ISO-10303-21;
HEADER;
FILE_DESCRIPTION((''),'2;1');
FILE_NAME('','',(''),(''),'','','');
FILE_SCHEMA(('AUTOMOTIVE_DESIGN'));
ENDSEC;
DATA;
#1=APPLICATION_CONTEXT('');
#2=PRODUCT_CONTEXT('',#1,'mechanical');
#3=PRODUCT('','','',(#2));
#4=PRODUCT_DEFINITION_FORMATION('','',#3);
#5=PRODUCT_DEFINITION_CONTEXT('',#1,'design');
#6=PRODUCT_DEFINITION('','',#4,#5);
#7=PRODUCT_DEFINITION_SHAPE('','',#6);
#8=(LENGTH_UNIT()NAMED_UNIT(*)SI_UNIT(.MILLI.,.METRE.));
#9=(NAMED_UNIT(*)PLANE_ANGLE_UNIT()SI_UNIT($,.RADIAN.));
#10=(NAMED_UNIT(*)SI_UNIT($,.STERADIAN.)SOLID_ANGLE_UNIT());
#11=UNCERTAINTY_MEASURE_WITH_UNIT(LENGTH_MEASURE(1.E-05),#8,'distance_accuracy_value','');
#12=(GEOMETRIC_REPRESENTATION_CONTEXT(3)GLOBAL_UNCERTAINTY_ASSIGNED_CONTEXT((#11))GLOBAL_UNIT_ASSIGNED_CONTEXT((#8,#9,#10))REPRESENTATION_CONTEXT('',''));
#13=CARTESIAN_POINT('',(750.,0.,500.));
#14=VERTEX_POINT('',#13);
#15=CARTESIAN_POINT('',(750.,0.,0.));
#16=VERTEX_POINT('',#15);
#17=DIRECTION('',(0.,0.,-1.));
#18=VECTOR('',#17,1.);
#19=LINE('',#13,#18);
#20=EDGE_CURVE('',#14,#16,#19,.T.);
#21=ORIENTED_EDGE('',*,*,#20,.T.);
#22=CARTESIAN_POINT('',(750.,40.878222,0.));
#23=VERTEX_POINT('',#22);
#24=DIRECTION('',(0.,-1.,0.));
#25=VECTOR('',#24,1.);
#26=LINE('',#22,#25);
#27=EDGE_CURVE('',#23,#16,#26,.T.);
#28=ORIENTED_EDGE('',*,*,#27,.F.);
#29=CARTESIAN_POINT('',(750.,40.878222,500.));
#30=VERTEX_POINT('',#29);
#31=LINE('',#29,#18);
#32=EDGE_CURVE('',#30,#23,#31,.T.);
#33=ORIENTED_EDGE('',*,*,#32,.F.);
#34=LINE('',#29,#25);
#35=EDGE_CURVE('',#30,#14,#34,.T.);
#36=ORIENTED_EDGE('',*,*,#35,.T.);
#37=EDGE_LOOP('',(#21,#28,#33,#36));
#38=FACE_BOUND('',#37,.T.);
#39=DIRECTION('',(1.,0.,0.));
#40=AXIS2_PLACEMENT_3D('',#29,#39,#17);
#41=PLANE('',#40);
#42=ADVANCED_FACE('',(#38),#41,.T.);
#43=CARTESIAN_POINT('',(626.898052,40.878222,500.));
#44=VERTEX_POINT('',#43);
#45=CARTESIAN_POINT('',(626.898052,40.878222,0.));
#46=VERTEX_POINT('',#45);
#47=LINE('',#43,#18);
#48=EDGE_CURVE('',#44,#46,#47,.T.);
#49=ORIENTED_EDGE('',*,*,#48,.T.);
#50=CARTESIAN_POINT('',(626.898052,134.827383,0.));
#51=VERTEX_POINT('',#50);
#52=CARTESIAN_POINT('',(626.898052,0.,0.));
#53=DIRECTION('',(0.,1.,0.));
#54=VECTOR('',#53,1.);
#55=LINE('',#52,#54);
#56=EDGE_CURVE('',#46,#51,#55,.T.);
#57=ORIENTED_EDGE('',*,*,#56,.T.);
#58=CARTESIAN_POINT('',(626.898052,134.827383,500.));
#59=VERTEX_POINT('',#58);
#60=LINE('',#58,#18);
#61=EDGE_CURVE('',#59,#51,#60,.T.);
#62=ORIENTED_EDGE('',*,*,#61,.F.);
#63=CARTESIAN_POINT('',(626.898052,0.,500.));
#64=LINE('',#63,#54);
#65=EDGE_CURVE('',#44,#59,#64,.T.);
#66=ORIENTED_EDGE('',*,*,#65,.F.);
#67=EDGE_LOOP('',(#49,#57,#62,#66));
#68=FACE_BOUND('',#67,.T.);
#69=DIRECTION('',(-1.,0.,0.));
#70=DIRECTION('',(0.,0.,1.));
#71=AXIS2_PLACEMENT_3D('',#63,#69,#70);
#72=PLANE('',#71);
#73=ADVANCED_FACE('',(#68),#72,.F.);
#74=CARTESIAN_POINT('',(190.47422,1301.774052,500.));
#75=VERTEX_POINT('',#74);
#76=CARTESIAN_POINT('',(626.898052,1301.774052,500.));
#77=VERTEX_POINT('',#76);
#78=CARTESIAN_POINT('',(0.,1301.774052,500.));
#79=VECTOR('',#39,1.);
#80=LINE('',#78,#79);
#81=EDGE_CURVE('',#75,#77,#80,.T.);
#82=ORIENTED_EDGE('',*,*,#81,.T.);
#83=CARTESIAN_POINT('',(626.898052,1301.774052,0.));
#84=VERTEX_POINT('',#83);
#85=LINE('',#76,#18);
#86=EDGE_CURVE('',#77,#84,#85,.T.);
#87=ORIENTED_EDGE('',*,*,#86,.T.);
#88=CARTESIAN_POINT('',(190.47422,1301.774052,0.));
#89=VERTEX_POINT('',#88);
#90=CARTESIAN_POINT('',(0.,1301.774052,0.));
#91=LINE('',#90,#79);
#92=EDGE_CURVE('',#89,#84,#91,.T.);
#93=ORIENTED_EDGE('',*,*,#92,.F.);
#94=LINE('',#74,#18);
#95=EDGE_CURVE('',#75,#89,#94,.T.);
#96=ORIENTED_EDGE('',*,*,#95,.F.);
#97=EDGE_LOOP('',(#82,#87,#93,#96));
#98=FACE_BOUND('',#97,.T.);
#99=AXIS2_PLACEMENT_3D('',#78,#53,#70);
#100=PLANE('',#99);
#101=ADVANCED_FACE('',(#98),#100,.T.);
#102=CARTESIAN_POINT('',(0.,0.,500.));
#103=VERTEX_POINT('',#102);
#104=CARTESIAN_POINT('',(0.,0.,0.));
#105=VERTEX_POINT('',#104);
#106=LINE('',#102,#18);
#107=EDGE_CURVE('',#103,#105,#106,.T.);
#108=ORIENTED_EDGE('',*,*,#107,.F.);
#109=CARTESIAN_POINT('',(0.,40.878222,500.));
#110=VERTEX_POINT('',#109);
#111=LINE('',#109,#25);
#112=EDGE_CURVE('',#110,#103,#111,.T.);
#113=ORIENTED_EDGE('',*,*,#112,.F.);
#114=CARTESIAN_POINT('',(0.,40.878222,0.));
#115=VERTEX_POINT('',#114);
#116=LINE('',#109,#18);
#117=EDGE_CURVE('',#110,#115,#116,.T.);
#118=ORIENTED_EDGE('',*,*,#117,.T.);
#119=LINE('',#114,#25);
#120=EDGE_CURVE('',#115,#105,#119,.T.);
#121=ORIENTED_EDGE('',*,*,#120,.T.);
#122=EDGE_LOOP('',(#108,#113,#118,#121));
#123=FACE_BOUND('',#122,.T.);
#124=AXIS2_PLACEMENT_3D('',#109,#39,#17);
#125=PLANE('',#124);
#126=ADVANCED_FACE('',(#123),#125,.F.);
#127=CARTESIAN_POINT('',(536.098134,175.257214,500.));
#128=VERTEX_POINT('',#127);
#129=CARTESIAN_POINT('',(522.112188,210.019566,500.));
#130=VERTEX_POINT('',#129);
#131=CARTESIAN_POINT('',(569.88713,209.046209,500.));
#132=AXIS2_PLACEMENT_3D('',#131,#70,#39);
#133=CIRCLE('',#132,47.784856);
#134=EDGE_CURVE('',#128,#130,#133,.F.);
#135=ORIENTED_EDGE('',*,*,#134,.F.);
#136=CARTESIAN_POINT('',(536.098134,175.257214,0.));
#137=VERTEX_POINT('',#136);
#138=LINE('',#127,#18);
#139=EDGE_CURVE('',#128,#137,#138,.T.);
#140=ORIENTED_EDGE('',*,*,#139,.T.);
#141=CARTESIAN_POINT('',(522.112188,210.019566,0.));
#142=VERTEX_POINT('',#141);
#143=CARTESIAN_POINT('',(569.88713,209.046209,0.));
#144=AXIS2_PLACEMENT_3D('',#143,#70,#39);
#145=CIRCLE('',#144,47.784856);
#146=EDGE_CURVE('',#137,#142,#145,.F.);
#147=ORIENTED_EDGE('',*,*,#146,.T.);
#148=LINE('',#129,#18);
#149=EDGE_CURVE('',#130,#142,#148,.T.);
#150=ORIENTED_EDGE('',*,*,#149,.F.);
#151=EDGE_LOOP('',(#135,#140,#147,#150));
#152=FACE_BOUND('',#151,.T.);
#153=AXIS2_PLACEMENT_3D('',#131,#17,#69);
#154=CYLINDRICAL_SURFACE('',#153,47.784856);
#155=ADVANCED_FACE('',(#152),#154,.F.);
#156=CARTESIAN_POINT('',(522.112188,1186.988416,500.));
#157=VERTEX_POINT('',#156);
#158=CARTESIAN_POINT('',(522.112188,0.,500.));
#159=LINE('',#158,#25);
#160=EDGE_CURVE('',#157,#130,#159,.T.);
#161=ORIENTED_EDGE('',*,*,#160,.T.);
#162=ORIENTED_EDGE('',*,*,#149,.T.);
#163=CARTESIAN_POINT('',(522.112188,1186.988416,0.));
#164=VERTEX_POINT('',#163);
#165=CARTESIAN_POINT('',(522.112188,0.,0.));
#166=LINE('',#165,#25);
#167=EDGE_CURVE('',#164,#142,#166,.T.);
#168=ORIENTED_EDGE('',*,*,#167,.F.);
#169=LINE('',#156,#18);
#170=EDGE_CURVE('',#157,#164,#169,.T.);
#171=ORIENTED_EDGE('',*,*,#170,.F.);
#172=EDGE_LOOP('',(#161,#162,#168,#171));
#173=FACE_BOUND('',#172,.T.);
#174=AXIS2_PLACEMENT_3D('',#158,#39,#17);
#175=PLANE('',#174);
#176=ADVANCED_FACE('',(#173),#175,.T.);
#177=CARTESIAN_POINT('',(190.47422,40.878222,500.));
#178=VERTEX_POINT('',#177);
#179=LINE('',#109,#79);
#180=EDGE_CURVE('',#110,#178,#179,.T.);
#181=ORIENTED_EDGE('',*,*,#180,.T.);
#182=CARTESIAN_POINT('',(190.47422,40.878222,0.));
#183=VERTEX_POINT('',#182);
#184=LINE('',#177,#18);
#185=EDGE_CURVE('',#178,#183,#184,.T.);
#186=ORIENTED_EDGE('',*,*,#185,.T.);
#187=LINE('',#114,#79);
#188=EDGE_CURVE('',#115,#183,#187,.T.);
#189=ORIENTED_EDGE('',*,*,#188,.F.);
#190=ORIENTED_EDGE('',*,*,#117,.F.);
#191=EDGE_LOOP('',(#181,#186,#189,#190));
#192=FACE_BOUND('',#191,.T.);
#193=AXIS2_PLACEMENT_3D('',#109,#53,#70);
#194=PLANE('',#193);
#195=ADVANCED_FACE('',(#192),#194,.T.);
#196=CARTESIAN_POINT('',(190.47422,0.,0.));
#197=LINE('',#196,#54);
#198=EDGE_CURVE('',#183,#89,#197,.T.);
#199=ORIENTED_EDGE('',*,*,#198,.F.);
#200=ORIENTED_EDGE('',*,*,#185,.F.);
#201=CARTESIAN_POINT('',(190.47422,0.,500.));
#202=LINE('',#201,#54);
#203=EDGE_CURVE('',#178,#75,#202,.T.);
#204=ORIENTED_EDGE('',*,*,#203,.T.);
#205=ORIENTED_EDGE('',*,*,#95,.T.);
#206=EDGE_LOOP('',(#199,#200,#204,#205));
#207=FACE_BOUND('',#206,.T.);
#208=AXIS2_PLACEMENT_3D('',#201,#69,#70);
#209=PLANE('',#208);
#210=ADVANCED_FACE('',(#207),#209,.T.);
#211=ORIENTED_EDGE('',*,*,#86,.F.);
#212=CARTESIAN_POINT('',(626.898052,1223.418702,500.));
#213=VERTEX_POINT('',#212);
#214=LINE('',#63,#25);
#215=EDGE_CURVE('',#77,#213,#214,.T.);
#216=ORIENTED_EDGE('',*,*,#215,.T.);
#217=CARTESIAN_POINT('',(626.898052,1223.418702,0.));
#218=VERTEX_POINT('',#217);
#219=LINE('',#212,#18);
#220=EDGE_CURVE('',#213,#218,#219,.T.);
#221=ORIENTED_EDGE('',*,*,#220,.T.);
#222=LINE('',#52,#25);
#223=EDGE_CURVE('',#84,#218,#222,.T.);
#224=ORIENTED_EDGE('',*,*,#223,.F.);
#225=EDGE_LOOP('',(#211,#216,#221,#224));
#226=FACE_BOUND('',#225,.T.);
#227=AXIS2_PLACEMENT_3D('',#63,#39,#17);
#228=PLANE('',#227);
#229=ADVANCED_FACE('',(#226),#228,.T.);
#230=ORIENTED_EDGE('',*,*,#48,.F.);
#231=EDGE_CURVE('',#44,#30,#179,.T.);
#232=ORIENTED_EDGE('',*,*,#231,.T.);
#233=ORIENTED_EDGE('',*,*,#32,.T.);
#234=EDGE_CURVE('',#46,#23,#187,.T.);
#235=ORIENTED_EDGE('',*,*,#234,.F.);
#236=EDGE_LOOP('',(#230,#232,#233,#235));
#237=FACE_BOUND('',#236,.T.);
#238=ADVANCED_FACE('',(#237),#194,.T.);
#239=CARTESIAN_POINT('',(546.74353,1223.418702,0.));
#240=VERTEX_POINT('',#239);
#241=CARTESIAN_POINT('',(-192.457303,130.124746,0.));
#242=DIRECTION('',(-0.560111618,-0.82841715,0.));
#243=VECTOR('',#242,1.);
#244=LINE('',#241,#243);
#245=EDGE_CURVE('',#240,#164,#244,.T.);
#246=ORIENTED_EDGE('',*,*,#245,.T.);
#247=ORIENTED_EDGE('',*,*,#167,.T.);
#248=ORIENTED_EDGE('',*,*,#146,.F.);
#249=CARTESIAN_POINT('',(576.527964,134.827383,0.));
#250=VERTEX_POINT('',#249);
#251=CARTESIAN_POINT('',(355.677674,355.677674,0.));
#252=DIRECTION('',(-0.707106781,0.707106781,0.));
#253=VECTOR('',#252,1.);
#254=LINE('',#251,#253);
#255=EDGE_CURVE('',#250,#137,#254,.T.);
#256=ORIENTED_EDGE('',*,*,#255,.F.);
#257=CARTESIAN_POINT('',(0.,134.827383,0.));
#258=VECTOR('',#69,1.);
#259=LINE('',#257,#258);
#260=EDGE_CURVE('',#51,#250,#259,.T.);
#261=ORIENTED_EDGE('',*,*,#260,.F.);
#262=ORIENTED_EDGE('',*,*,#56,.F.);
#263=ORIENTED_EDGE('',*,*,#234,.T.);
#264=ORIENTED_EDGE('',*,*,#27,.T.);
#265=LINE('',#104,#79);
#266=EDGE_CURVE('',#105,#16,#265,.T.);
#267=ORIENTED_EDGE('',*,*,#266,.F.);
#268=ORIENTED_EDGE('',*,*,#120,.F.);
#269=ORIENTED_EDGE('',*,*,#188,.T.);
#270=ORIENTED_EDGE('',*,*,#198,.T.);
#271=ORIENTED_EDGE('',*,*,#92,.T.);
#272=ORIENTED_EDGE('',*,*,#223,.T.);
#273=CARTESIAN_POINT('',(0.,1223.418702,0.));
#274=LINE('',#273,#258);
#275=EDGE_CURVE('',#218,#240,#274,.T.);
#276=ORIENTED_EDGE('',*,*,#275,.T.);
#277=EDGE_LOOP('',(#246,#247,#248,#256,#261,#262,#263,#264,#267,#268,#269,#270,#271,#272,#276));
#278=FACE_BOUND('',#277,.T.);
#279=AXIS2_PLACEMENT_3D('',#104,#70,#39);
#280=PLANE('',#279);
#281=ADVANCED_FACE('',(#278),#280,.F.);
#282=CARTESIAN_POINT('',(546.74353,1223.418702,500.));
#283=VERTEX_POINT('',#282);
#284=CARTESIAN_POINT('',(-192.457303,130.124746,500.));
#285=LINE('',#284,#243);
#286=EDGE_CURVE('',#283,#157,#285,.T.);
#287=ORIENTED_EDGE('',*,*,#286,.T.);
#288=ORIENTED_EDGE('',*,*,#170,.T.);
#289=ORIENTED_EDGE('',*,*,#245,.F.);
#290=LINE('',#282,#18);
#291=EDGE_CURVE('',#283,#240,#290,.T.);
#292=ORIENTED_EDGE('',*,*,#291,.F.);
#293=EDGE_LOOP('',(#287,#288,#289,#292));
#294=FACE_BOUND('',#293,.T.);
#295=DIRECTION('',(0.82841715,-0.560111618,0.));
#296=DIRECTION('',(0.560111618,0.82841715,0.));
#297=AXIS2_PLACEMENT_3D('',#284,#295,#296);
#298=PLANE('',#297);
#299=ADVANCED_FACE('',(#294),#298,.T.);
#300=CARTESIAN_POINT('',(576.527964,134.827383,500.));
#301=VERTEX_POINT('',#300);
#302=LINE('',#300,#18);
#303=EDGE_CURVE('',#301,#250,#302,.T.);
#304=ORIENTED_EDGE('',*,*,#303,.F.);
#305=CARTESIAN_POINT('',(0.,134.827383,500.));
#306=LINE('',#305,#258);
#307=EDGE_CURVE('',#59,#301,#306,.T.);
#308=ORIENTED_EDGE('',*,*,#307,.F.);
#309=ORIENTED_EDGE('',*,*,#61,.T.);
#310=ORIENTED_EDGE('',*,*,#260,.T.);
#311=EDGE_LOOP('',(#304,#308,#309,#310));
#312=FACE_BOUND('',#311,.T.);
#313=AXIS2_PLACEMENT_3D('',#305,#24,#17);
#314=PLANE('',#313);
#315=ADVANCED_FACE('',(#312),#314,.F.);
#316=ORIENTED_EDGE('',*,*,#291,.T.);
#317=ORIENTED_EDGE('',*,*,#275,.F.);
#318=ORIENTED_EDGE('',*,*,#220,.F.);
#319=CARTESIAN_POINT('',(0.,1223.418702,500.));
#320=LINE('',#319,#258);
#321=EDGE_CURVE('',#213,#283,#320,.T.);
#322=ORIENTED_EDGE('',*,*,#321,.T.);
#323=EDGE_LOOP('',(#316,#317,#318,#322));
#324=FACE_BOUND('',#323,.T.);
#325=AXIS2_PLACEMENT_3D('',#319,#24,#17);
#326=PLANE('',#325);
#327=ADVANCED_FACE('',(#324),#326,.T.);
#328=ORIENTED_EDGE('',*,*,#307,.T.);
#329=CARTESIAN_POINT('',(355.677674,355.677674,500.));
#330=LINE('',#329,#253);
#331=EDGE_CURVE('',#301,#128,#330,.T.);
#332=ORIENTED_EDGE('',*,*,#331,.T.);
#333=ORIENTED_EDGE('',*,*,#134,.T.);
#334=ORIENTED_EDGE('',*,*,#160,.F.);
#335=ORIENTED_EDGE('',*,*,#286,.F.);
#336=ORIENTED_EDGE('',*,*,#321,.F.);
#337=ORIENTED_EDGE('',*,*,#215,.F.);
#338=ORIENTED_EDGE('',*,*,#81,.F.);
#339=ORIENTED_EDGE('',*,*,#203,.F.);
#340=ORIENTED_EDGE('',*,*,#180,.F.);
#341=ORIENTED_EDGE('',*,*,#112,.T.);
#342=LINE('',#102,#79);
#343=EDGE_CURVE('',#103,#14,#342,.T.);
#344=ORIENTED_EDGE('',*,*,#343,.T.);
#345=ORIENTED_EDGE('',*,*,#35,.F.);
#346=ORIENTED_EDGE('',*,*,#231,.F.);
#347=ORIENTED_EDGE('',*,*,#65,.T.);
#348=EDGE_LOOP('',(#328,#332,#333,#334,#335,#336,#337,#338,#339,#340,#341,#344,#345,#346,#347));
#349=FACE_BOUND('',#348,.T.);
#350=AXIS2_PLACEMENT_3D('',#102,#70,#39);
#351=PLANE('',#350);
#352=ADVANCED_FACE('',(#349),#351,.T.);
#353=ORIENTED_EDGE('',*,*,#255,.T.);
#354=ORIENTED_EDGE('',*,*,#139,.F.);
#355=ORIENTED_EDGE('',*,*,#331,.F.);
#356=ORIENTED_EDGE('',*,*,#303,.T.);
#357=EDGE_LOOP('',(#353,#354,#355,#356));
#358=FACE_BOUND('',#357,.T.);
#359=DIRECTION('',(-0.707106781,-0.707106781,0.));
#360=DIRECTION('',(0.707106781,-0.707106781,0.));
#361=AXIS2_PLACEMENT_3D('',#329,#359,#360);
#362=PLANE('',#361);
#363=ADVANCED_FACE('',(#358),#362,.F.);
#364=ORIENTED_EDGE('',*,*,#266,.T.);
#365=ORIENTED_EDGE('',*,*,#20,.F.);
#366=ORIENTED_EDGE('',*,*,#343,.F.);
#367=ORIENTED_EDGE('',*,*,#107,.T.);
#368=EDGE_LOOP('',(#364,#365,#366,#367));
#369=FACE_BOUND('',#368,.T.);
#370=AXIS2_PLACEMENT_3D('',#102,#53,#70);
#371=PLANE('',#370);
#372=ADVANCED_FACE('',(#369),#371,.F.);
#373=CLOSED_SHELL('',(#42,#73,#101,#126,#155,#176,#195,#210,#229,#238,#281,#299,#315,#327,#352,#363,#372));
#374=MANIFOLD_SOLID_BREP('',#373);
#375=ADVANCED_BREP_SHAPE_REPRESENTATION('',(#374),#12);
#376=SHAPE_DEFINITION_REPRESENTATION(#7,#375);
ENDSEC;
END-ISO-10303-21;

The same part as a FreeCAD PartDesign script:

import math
import FreeCAD as App
import Part
import Sketcher

V = App.Vector
Q = App.Units.Quantity

doc = App.newDocument("Part")
body = doc.addObject("PartDesign::Body", "Body")

sketch1 = body.newObject("Sketcher::SketchObject", "Sketch")
sketch1.AttachmentSupport = (doc.getObject("XY_Plane"), [""])
sketch1.MapMode = "FlatFace"
sketch1.addGeometry(Part.LineSegment(V(0, 40.878222, 0), V(0, 0, 0)), False)
sketch1.addGeometry(Part.LineSegment(V(0, 0, 0), V(750, 0, 0)), False)
sketch1.addGeometry(Part.LineSegment(V(750, 0, 0), V(750, 40.878222, 0)), False)
sketch1.addGeometry(Part.LineSegment(V(750, 40.878222, 0), V(626.898052, 40.878222, 0)), False)
sketch1.addGeometry(Part.LineSegment(V(626.898052, 40.878222, 0), V(626.898052, 134.827383, 0)), False)
sketch1.addGeometry(Part.LineSegment(V(626.898052, 134.827383, 0), V(576.527964, 134.827383, 0)), False)
sketch1.addGeometry(Part.LineSegment(V(576.527964, 134.827383, 0), V(536.098134, 175.257214, 0)), False)
sketch1.addGeometry(Part.ArcOfCircle(Part.Circle(V(569.88713, 209.046209, 0), V(0, 0, 1), 47.784856), math.radians(178.832829), math.radians(225)), False)
sketch1.addGeometry(Part.LineSegment(V(522.112188, 210.019566, 0), V(522.112188, 1186.988416, 0)), False)
sketch1.addGeometry(Part.LineSegment(V(522.112188, 1186.988416, 0), V(546.74353, 1223.418702, 0)), False)
sketch1.addGeometry(Part.LineSegment(V(546.74353, 1223.418702, 0), V(626.898052, 1223.418702, 0)), False)
sketch1.addGeometry(Part.LineSegment(V(626.898052, 1223.418702, 0), V(626.898052, 1301.774052, 0)), False)
sketch1.addGeometry(Part.LineSegment(V(626.898052, 1301.774052, 0), V(190.47422, 1301.774052, 0)), False)
sketch1.addGeometry(Part.LineSegment(V(190.47422, 1301.774052, 0), V(190.47422, 40.878222, 0)), False)
sketch1.addGeometry(Part.LineSegment(V(190.47422, 40.878222, 0), V(0, 40.878222, 0)), False)
sketch1.addConstraint(Sketcher.Constraint("Coincident", 0, 2, 1, 1))
sketch1.addConstraint(Sketcher.Constraint("Coincident", 1, 2, 2, 1))
sketch1.addConstraint(Sketcher.Constraint("Coincident", 2, 2, 3, 1))
sketch1.addConstraint(Sketcher.Constraint("Coincident", 3, 2, 4, 1))
sketch1.addConstraint(Sketcher.Constraint("Coincident", 4, 2, 5, 1))
sketch1.addConstraint(Sketcher.Constraint("Coincident", 5, 2, 6, 1))
sketch1.addConstraint(Sketcher.Constraint("Tangent", 6, 2, 7, 2))
sketch1.addConstraint(Sketcher.Constraint("Coincident", 7, 1, 8, 1))
sketch1.addConstraint(Sketcher.Constraint("Coincident", 8, 2, 9, 1))
sketch1.addConstraint(Sketcher.Constraint("Coincident", 9, 2, 10, 1))
sketch1.addConstraint(Sketcher.Constraint("Coincident", 10, 2, 11, 1))
sketch1.addConstraint(Sketcher.Constraint("Coincident", 11, 2, 12, 1))
sketch1.addConstraint(Sketcher.Constraint("Coincident", 12, 2, 13, 1))
sketch1.addConstraint(Sketcher.Constraint("Coincident", 13, 2, 14, 1))
sketch1.addConstraint(Sketcher.Constraint("Coincident", 14, 2, 0, 1))
sketch1.addConstraint(Sketcher.Constraint("Vertical", 0))
sketch1.addConstraint(Sketcher.Constraint("Horizontal", 1))
sketch1.addConstraint(Sketcher.Constraint("Vertical", 2))
sketch1.addConstraint(Sketcher.Constraint("Horizontal", 3))
sketch1.addConstraint(Sketcher.Constraint("Vertical", 4))
sketch1.addConstraint(Sketcher.Constraint("Horizontal", 5))
sketch1.addConstraint(Sketcher.Constraint("Vertical", 8))
sketch1.addConstraint(Sketcher.Constraint("Horizontal", 10))
sketch1.addConstraint(Sketcher.Constraint("Vertical", 11))
sketch1.addConstraint(Sketcher.Constraint("Horizontal", 12))
sketch1.addConstraint(Sketcher.Constraint("Vertical", 13))
sketch1.addConstraint(Sketcher.Constraint("Horizontal", 14))
sketch1.addConstraint(Sketcher.Constraint("Coincident", 0, 2, -1, 1))
sketch1.addConstraint(Sketcher.Constraint("Horizontal", 3, 2, 13, 2))
sketch1.addConstraint(Sketcher.Constraint("Vertical", 4, 2, 10, 2))
sketch1.addConstraint(Sketcher.Constraint("DistanceX", 1, 1, 1, 2, 750.0))
sketch1.addConstraint(Sketcher.Constraint("Angle", 6, Q("135 deg")))
sketch1.addConstraint(Sketcher.Constraint("Radius", 7, 47.784856))
sketch1.addConstraint(Sketcher.Constraint("DistanceX", 5, 2, 5, 1, 50.370088))
sketch1.addConstraint(Sketcher.Constraint("DistanceX", 14, 2, 14, 1, 190.47422))
sketch1.addConstraint(Sketcher.Constraint("DistanceY", 0, 2, 0, 1, 40.878222))
sketch1.addConstraint(Sketcher.Constraint("DistanceY", 4, 1, 4, 2, 93.949162))
sketch1.addConstraint(Sketcher.Constraint("DistanceY", 8, 1, 8, 2, 976.96885))
sketch1.addConstraint(Sketcher.Constraint("DistanceY", 11, 1, 11, 2, 78.355349))
sketch1.addConstraint(Sketcher.Constraint("DistanceY", 13, 2, 13, 1, 1260.89583))
sketch1.addConstraint(Sketcher.Constraint("DistanceX", 9, 2, 7, 3, 23.143599))
sketch1.addConstraint(Sketcher.Constraint("DistanceX", 3, 2, 3, 1, 123.101948))
sketch1.addConstraint(Sketcher.Constraint("DistanceX", 10, 1, 10, 2, 80.154522))
sketch1.addConstraint(Sketcher.Constraint("DistanceX", 7, 1, 7, 3, 47.774942))
pad1 = body.newObject("PartDesign::Pad", "Pad")
pad1.Profile = sketch1
pad1.Length = 500

doc.recompute()
